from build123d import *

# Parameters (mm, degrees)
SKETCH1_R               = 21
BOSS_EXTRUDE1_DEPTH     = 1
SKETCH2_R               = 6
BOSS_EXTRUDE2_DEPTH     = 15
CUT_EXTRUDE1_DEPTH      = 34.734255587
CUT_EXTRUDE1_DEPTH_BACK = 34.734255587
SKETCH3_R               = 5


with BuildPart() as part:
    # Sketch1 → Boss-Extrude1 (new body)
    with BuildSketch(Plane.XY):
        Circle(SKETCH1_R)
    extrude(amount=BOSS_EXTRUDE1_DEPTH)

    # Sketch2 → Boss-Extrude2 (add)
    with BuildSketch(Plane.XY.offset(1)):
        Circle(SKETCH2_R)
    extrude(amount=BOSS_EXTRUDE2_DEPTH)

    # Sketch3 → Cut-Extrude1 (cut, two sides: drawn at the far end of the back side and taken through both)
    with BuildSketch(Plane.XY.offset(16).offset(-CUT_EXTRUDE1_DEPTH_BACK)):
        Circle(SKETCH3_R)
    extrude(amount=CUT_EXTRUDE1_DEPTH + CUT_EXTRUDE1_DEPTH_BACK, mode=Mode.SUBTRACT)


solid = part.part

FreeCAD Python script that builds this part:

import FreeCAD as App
import Part
import Sketcher

V = App.Vector

doc = App.newDocument("Part")
body = doc.addObject("PartDesign::Body", "Body")

sketch1 = doc.addObject("Sketcher::SketchObject", "Sketch")
body.addObject(sketch1)
sketch1.AttachmentSupport = (doc.XY_Plane, [""])
sketch1.MapMode = "FlatFace"
sketch1.addGeometry(Part.Circle(V(0, 0, 0), V(0, 0, 1), 21), False)
sketch1.addConstraint(Sketcher.Constraint("Coincident", 0, 3, -1, 1))
sketch1.addConstraint(Sketcher.Constraint("Diameter", 0, 42.0))
pad1 = doc.addObject("PartDesign::Pad", "Pad")
body.addObject(pad1)
pad1.Profile = sketch1
pad1.Length = 1

sketch2 = doc.addObject("Sketcher::SketchObject", "Sketch001")
body.addObject(sketch2)
sketch2.AttachmentSupport = (doc.XY_Plane, [""])
sketch2.MapMode = "FlatFace"
sketch2.AttachmentOffset = App.Placement(V(0, 0, 1), App.Rotation())
sketch2.addGeometry(Part.Circle(V(0, 0, 0), V(0, 0, 1), 6), False)
sketch2.addConstraint(Sketcher.Constraint("Coincident", 0, 3, -1, 1))
sketch2.addConstraint(Sketcher.Constraint("Diameter", 0, 12.0))
pad2 = doc.addObject("PartDesign::Pad", "Pad001")
body.addObject(pad2)
pad2.Profile = sketch2
pad2.Length = 15

sketch3 = doc.addObject("Sketcher::SketchObject", "Sketch002")
body.addObject(sketch3)
sketch3.AttachmentSupport = (doc.XY_Plane, [""])
sketch3.MapMode = "FlatFace"
sketch3.AttachmentOffset = App.Placement(V(0, 0, 16), App.Rotation())
sketch3.addGeometry(Part.Circle(V(0, 0, 0), V(0, 0, 1), 5), False)
sketch3.addConstraint(Sketcher.Constraint("Coincident", 0, 3, -1, 1))
sketch3.addConstraint(Sketcher.Constraint("Diameter", 0, 10.0))
pocket1 = doc.addObject("PartDesign::Pocket", "Pocket")
body.addObject(pocket1)
pocket1.Profile = sketch3
pocket1.Type = "ThroughAll"
pocket1.Midplane = True

doc.recompute()
